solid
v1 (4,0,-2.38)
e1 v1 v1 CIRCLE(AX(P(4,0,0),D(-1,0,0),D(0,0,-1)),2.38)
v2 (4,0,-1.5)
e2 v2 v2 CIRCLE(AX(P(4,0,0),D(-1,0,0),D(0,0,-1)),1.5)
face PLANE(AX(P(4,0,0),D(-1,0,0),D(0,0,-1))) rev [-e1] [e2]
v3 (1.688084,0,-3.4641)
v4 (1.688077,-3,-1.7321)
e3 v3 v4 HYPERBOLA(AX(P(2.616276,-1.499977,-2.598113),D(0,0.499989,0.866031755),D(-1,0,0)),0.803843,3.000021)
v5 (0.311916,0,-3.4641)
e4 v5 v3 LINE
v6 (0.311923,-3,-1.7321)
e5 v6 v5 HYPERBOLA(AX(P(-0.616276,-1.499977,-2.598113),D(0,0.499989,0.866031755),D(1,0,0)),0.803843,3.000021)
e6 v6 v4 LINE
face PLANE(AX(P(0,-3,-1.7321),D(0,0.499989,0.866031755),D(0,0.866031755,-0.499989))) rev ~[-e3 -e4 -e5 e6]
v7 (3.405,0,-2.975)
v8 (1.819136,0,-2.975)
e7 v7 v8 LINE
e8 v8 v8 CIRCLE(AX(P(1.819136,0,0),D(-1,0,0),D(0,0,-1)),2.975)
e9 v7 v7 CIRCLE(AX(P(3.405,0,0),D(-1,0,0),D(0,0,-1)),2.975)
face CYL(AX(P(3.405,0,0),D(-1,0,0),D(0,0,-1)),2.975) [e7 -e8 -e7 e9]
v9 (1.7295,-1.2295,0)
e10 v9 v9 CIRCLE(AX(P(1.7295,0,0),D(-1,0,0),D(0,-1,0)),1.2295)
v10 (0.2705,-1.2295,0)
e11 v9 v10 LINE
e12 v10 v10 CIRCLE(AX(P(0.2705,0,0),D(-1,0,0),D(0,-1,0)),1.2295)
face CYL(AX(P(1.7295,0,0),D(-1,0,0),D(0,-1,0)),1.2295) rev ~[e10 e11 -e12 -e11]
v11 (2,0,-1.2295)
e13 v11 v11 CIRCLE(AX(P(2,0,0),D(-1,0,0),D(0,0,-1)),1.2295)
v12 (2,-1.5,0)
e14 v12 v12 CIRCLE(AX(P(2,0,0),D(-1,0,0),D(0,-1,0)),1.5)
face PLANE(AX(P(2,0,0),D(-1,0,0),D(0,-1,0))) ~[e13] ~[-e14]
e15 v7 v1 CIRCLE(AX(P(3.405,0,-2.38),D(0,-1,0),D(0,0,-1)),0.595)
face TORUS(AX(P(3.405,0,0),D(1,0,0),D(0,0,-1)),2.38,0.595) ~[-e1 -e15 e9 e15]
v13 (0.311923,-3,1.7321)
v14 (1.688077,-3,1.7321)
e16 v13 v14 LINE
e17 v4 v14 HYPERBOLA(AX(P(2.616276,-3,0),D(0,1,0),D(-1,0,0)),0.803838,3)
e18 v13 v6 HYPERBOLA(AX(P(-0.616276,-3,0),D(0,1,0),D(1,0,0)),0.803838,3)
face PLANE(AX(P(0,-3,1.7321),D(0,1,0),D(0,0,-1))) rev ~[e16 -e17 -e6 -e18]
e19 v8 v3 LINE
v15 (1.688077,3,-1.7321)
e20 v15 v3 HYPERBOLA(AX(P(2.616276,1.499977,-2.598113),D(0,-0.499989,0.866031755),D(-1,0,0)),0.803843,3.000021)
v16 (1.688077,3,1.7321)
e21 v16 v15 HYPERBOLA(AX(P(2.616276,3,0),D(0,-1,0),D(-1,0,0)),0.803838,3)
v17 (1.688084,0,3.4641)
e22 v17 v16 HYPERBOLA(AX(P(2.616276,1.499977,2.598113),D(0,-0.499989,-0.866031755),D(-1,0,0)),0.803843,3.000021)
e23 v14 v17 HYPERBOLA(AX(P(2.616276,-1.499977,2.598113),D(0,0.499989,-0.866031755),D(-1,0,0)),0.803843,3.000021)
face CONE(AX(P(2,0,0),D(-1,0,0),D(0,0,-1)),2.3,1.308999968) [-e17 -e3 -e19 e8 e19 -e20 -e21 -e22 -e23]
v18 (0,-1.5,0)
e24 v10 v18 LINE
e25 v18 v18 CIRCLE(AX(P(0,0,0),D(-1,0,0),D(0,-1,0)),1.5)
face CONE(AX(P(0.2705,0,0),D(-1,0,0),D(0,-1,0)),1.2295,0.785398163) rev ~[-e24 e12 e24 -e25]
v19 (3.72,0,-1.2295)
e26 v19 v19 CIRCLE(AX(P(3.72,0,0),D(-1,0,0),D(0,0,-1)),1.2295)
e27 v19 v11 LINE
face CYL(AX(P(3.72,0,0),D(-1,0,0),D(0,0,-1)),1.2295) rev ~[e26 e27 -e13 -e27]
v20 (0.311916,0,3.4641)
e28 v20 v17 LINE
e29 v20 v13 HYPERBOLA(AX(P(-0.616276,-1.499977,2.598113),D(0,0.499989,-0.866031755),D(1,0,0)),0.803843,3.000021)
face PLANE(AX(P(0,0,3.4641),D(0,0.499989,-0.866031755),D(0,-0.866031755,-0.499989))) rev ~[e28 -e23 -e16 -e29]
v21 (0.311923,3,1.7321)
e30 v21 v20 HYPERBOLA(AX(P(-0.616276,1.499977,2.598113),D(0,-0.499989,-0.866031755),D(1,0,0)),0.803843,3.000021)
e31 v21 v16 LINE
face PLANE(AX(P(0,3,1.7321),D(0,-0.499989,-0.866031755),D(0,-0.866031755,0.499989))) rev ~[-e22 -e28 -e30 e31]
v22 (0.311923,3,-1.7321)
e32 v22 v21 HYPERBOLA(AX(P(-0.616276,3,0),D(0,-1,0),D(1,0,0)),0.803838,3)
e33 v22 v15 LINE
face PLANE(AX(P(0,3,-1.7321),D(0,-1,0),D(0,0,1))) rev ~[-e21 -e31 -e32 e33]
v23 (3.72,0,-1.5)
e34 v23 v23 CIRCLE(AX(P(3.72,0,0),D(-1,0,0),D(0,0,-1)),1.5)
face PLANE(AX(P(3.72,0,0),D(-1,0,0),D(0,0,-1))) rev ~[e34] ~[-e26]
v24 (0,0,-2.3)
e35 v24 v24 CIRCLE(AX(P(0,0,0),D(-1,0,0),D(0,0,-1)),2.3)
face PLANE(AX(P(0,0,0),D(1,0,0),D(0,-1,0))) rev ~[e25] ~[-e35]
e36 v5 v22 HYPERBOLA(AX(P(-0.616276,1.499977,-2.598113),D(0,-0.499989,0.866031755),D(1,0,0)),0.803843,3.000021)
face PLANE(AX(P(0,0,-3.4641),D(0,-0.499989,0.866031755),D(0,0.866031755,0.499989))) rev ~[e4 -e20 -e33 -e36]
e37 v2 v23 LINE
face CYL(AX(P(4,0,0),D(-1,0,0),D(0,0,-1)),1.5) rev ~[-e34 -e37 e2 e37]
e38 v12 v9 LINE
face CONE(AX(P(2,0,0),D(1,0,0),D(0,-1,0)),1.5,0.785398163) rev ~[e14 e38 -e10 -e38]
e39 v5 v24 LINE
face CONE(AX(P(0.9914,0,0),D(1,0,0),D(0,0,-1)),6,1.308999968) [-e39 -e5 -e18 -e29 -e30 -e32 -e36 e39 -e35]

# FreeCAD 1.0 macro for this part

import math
import FreeCAD as App
import Part
import Sketcher

V = App.Vector
Q = App.Units.Quantity


def add_polygon(sketch, points):
    """Adds a closed chain of lines whose ends are joined by coincident constraints."""
    first, n = sketch.GeometryCount, len(points)
    for a, b in zip(points, points[1:] + points[:1]):
        sketch.addGeometry(Part.LineSegment(App.Vector(*a, 0), App.Vector(*b, 0)), False)
    for i in range(n):
        sketch.addConstraint(Sketcher.Constraint("Coincident", first + i, 2, first + (i + 1) % n, 1))

doc = App.newDocument("Part")
body = doc.addObject("PartDesign::Body", "Body")

sketch1 = body.newObject("Sketcher::SketchObject", "Sketch")
sketch1.AttachmentSupport = (doc.getObject("YZ_Plane"), [""])
sketch1.MapMode = "FlatFace"
add_polygon(sketch1, [(3, -1.7), (3, 1.7), (0, 3.5), (-3, 1.7), (-3, -1.7), (0, -3.5)])
sketch1.addConstraint([
    Sketcher.Constraint("Vertical", 0),
    Sketcher.Constraint("Vertical", 3),
    Sketcher.Constraint("Symmetric", 0, 2, 3, 2, -1, 1),
    Sketcher.Constraint("Symmetric", 1, 2, 4, 2, -1, 1),
    Sketcher.Constraint("PointOnObject", 1, 2, -2),
    Sketcher.Constraint("Parallel", 2, 5),
    Sketcher.Constraint("Horizontal", 0, 2, 2, 2),
    Sketcher.Constraint("Angle", 1, Q("150.0007 deg")),
    Sketcher.Constraint("DistanceX", -1, 1, 0, 2, 3.0),
    Sketcher.Constraint("DistanceY", 0, 1, 0, 2, 3.4642),
])
pad1 = body.newObject("PartDesign::Pad", "Pad")
pad1.Profile = sketch1
pad1.Length = 2

sketch2 = body.newObject("Sketcher::SketchObject", "Sketch001")
sketch2.AttachmentSupport = (doc.getObject("XZ_Plane"), [""])
sketch2.MapMode = "FlatFace"
add_polygon(sketch2, [(1, -6), (0, -2.3), (0, -6)])
sketch2.addConstraint([
    Sketcher.Constraint("Vertical", 1),
    Sketcher.Constraint("Horizontal", 2),
    Sketcher.Constraint("PointOnObject", 0, 2, -2),
    Sketcher.Constraint("Angle", 0, Q("104.9998 deg")),
    Sketcher.Constraint("DistanceY", 1, 2, 1, 1, 3.7),
    Sketcher.Constraint("DistanceY", 1, 2, -1, 1, 6.0),
])
groove = body.newObject("PartDesign::Groove", "Groove")
groove.Profile = sketch2
groove.ReferenceAxis = (sketch2, ["H_Axis"])
groove.Angle = 360

sketch3 = body.newObject("Sketcher::SketchObject", "Sketch002")
sketch3.AttachmentSupport = (doc.getObject("XZ_Plane"), [""])
sketch3.MapMode = "FlatFace"
add_polygon(sketch3, [(2, -6), (2, -2.3), (1, -6)])
sketch3.addConstraint([
    Sketcher.Constraint("Vertical", 0),
    Sketcher.Constraint("Horizontal", 2),
    Sketcher.Constraint("Angle", 1, Q("-104.9998 deg")),
    Sketcher.Constraint("DistanceY", 0, 1, 0, 2, 3.7),
    Sketcher.Constraint("DistanceX", -1, 1, 0, 2, 2.0),
    Sketcher.Constraint("DistanceY", 1, 2, -1, 1, 6.0),
])
groove2 = body.newObject("PartDesign::Groove", "Groove001")
groove2.Profile = sketch3
groove2.ReferenceAxis = (sketch3, ["H_Axis"])
groove2.Angle = 360

sketch4 = body.newObject("Sketcher::SketchObject", "Sketch003")
sketch4.AttachmentSupport = (doc.getObject("XZ_Plane"), [""])
sketch4.MapMode = "FlatFace"
sketch4.addGeometry([
    Part.LineSegment(V(4, 0, 0), V(1.8, 0, 0)),
    Part.LineSegment(V(1.8, 0, 0), V(1.8, -3, 0)),
    Part.LineSegment(V(1.8, -3, 0), V(3.4, -3, 0)),
    Part.ArcOfCircle(Part.Circle(V(3.4, -2.4, 0), V(0, 0, 1), 0.6), math.radians(-90), math.radians(0)),
    Part.LineSegment(V(4, -2.4, 0), V(4, 0, 0)),
], False)
sketch4.addConstraint([
    Sketcher.Constraint("Coincident", 0, 2, 1, 1),
    Sketcher.Constraint("Coincident", 1, 2, 2, 1),
    Sketcher.Constraint("Tangent", 2, 2, 3, 1),
    Sketcher.Constraint("Tangent", 3, 2, 4, 1),
    Sketcher.Constraint("Coincident", 4, 2, 0, 1),
    Sketcher.Constraint("Horizontal", 0),
    Sketcher.Constraint("Vertical", 1),
    Sketcher.Constraint("Horizontal", 2),
    Sketcher.Constraint("Vertical", 4),
    Sketcher.Constraint("PointOnObject", 0, 2, -1),
    Sketcher.Constraint("DistanceX", -1, 1, 3, 2, 4.0),
    Sketcher.Constraint("Radius", 3, 0.595),
    Sketcher.Constraint("DistanceY", 4, 1, 4, 2, 2.38),
    Sketcher.Constraint("DistanceX", 0, 2, 0, 1, 2.2457),
])
revolution = body.newObject("PartDesign::Revolution", "Revolution")
revolution.Profile = sketch4
revolution.ReferenceAxis = (sketch4, ["H_Axis"])
revolution.Angle = 360

sketch5 = body.newObject("Sketcher::SketchObject", "Sketch004")
sketch5.AttachmentSupport = (doc.getObject("XY_Plane"), [""])
sketch5.MapMode = "FlatFace"
add_polygon(sketch5, [(2, 0), (0, 0), (0, -1.5), (0.27, -1.23), (1.73, -1.23), (2, -1.5)])
sketch5.addConstraint([
    Sketcher.Constraint("Horizontal", 0),
    Sketcher.Constraint("Vertical", 1),
    Sketcher.Constraint("Horizontal", 3),
    Sketcher.Constraint("Vertical", 5),
    Sketcher.Constraint("Coincident", 0, 2, -1, 1),
    Sketcher.Constraint("Perpendicular", 2, 4),
    Sketcher.Constraint("Horizontal", 1, 2, 4, 2),
    Sketcher.Constraint("Equal", 2, 4),
    Sketcher.Constraint("DistanceX", 0, 2, 0, 1, 2.0),
    Sketcher.Constraint("DistanceY", 1, 2, 1, 1, 1.5),
    Sketcher.Constraint("DistanceX", 3, 1, 3, 2, 1.459),
])
groove3 = body.newObject("PartDesign::Groove", "Groove002")
groove3.Profile = sketch5
groove3.ReferenceAxis = (sketch5, ["H_Axis"])
groove3.Angle = 360

sketch6 = body.newObject("Sketcher::SketchObject", "Sketch005")
sketch6.AttachmentSupport = (doc.getObject("YZ_Plane"), [""])
sketch6.MapMode = "FlatFace"
sketch6.AttachmentOffset = App.Placement(V(0, 0, 4), App.Rotation())
sketch6.addGeometry(Part.Circle(V(0, 0, 0), V(0, 0, 1), 1.2), False)
sketch6.addConstraint([
    Sketcher.Constraint("Coincident", 0, 3, -1, 1),
    Sketcher.Constraint("Diameter", 0, 2.459),
])
doc.recompute()
hole = body.newObject("PartDesign::Hole", "Hole")
hole.Profile = sketch6
hole.ThreadType = "None"
hole.Diameter = 2.459
hole.DepthType = "Dimension"
hole.Depth = 2
hole.DrillPoint = "Flat"
hole.HoleCutType = "Counterbore"
hole.HoleCutDiameter = 3
hole.HoleCutDepth = 0.28

doc.recompute()
